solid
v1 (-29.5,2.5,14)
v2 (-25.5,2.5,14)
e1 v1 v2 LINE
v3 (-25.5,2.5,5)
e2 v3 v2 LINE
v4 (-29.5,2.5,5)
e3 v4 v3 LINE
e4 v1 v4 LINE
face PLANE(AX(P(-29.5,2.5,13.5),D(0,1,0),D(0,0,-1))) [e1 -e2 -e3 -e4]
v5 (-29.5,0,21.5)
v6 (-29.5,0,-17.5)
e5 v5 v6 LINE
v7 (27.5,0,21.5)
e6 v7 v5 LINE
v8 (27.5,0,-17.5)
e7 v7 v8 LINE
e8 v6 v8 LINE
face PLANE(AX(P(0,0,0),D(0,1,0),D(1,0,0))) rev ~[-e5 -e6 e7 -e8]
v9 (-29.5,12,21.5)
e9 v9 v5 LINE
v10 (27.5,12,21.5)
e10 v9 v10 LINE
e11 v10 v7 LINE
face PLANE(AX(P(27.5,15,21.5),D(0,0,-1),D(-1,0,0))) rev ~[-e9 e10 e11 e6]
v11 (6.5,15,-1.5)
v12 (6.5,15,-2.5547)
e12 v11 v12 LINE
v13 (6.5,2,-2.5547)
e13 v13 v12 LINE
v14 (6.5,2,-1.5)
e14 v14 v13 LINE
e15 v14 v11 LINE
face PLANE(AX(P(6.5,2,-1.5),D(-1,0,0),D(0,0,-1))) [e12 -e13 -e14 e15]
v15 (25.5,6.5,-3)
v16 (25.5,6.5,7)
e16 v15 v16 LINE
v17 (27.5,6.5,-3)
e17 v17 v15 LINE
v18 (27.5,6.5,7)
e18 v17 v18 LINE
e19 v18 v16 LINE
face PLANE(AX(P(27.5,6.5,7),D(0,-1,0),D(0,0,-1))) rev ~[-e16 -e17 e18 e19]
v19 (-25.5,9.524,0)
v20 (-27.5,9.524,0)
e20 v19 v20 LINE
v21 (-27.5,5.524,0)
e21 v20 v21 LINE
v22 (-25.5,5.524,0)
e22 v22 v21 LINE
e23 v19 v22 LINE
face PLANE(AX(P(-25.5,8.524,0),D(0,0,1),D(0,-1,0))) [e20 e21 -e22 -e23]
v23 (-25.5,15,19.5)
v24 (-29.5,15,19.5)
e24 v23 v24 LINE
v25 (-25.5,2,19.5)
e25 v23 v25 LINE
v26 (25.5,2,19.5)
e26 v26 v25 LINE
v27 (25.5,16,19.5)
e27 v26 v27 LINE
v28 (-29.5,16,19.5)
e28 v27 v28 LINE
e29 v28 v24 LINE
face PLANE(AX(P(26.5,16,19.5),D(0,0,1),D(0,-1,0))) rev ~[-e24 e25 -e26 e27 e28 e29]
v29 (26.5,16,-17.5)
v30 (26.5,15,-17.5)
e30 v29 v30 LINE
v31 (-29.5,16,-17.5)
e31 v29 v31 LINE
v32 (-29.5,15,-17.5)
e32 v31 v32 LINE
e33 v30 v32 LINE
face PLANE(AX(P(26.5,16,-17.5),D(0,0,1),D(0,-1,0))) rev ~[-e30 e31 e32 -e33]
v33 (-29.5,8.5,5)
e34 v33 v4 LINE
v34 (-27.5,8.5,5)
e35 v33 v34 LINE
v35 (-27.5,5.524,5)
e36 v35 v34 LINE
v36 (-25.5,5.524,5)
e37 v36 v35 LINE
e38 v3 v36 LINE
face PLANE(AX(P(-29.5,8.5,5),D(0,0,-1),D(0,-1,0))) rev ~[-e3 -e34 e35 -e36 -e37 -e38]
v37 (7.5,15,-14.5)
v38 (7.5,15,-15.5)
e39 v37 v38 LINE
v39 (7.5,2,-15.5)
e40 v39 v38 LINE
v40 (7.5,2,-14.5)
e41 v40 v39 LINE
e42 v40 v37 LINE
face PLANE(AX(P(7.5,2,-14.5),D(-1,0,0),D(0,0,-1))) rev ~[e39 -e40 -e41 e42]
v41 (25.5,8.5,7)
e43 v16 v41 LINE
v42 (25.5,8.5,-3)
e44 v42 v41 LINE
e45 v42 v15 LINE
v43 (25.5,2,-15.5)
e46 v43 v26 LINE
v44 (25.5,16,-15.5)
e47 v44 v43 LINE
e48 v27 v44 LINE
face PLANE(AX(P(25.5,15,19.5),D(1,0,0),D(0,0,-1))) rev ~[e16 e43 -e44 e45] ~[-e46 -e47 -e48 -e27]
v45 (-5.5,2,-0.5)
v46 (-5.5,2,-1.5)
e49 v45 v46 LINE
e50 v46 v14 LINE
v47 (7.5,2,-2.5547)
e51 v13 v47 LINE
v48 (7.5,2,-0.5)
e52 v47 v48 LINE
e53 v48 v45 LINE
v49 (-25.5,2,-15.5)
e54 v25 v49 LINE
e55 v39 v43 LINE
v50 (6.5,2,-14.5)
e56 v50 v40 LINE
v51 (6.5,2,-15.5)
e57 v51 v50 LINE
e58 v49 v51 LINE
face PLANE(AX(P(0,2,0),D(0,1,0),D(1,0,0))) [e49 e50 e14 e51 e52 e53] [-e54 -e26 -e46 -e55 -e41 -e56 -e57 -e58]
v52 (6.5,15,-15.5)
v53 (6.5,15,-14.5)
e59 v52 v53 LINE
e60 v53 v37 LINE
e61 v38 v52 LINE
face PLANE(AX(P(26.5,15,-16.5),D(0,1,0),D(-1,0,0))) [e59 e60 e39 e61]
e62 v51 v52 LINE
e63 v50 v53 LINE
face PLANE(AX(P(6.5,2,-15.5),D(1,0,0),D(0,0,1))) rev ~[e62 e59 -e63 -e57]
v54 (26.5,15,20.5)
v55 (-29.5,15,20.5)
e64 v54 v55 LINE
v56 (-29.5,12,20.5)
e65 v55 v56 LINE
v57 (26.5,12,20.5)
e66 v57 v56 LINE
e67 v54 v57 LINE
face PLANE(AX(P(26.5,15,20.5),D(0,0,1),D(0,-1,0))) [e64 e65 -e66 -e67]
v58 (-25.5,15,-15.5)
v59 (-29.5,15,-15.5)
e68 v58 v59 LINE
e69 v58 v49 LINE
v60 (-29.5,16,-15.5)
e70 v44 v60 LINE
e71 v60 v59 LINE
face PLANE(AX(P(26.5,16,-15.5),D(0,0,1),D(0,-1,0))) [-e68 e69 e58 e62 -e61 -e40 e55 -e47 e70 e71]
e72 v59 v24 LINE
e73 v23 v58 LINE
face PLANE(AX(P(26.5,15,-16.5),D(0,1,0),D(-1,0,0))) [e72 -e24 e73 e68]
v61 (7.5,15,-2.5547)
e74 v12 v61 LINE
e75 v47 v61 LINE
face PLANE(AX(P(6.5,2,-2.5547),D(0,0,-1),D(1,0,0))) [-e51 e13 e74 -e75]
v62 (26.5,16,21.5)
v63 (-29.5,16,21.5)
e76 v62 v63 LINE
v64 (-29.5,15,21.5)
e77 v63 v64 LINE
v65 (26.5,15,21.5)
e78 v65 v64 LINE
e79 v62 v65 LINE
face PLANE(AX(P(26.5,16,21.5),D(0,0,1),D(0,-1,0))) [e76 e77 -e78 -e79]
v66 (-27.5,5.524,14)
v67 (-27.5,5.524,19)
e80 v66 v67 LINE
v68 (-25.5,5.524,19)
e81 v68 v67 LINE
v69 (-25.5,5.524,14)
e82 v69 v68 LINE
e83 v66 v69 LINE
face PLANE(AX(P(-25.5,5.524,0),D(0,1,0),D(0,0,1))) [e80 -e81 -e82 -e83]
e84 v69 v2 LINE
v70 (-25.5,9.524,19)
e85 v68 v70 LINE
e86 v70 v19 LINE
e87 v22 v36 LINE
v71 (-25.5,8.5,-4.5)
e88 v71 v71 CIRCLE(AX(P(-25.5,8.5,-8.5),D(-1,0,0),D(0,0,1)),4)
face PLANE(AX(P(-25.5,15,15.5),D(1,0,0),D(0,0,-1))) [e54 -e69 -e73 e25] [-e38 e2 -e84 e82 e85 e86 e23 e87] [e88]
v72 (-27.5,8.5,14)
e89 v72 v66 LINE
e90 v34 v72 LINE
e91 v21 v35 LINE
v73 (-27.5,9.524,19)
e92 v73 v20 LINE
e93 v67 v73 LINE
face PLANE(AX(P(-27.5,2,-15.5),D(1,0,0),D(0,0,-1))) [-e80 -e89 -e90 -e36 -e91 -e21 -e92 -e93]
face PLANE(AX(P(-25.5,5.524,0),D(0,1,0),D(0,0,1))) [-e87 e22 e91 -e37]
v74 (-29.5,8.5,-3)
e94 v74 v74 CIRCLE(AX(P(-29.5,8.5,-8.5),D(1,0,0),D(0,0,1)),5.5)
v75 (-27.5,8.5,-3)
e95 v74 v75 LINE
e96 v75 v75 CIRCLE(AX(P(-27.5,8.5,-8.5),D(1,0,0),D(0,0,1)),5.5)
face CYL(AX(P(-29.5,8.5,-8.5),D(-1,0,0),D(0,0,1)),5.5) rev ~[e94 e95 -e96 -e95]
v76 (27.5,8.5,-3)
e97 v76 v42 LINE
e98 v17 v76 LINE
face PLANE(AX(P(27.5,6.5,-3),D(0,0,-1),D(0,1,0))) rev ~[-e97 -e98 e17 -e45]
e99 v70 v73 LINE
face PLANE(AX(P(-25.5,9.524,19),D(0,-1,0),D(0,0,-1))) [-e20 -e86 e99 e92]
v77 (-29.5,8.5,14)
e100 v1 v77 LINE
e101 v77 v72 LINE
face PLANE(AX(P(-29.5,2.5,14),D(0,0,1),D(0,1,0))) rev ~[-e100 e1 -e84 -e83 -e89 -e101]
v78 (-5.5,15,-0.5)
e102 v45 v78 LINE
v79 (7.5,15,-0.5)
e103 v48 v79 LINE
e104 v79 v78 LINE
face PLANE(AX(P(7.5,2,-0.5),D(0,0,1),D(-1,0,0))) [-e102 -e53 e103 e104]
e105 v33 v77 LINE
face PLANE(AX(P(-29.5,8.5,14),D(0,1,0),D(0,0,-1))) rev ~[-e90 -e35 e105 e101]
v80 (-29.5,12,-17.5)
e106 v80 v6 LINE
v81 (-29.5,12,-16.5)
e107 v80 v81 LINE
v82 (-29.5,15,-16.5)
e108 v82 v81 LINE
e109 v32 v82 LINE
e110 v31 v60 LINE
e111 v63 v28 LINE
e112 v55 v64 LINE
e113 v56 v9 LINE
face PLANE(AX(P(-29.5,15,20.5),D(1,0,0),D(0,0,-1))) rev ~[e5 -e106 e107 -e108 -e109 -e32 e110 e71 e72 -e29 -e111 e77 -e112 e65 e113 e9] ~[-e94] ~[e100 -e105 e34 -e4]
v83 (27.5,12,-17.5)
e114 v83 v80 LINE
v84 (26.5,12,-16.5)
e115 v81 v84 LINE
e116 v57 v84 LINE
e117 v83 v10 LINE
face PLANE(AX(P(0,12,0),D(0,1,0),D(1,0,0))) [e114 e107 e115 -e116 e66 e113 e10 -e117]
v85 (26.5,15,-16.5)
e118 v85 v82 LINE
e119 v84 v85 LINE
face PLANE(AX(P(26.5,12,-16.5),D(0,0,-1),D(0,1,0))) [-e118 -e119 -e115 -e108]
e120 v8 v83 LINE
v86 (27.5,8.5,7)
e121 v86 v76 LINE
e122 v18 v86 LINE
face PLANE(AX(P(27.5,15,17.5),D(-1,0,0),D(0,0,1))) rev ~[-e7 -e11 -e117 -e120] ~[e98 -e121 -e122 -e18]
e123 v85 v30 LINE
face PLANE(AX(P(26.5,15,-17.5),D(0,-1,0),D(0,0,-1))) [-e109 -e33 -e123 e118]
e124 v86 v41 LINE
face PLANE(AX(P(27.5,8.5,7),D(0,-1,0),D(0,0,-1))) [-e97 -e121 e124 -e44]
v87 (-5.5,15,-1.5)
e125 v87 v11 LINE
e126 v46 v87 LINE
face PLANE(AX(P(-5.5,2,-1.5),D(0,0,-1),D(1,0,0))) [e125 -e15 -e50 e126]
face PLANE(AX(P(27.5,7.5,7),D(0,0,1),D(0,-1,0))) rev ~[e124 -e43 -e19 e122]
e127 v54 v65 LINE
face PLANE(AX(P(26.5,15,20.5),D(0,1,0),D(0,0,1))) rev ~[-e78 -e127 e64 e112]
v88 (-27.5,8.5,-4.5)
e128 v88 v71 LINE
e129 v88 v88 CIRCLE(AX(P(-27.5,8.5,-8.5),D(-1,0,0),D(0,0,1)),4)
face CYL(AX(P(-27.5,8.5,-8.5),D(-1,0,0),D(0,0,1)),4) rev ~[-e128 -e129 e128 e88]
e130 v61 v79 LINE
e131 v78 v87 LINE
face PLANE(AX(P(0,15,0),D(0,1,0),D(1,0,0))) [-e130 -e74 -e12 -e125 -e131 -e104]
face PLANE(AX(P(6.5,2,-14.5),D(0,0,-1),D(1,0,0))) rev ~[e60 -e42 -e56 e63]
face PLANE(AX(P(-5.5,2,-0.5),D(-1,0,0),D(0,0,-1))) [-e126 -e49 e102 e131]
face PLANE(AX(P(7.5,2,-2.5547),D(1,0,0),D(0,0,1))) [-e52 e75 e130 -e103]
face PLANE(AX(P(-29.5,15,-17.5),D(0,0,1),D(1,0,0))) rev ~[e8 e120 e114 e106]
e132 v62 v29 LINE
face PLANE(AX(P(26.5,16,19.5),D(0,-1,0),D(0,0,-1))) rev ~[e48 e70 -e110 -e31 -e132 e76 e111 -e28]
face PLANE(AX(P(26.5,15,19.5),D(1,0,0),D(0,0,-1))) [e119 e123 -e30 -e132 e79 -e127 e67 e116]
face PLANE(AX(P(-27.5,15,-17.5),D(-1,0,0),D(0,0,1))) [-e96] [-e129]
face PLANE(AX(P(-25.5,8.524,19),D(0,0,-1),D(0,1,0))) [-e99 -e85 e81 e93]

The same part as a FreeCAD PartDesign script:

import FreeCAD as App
import Part
import Sketcher
from FreeCAD import Vector


def add_polygon(sketch, points):
    """Adds a closed chain of lines whose ends are joined by coincident constraints."""
    first, n = sketch.GeometryCount, len(points)
    for a, b in zip(points, points[1:] + points[:1]):
        sketch.addGeometry(Part.LineSegment(App.Vector(*a, 0), App.Vector(*b, 0)), False)
    for i in range(n):
        sketch.addConstraint(Sketcher.Constraint("Coincident", first + i, 2, first + (i + 1) % n, 1))

doc = App.newDocument("Part")
params = doc.addObject("Spreadsheet::Sheet", "Params")
for row, (alias, value) in enumerate([
    ("sketch1_width", "55 mm"),
    ("sketch1_height", "35 mm"),
    ("pad1_length", "15 mm"),
    ("sketch2_width", "51 mm"),
    ("sketch2_height", "31 mm"),
    ("pocket1_length", "13 mm"),
    ("sketch3_width", "2 mm"),
    ("sketch3_height", "35 mm"),
    ("pad2_length", "15 mm"),
    ("sketch4_diameter", "11 mm"),
    ("pocket2_length", "2 mm"),
    ("sketch5_diameter", "8 mm"),
    ("pocket3_length", "2 mm"),
    ("sketch6_width", "12 mm"),
    ("sketch6_width2", "13 mm"),
    ("pad3_length", "13 mm"),
    ("sketch7_width", "1 mm"),
    ("pad4_length", "13 mm"),
    ("sketch8_height", "4 mm"),
    ("sketch8_width", "57 mm"),
    ("pad5_length", "15 mm"),
    ("sketch9_height", "4 mm"),
    ("sketch9_width", "51 mm"),
    ("pocket4_length", "13 mm"),
    ("sketch10_width", "3 mm"),
    ("sketch10_height", "8 mm"),
    ("pocket5_length", "4 mm"),
    ("sketch11_width", "3 mm"),
    ("sketch11_height", "19 mm"),
    ("pocket6_length", "2 mm"),
    ("sketch12_width", "2 mm"),
    ("sketch12_height", "10 mm"),
    ("pocket7_length", "3 mm"),
    ("sketch13_height", "1 mm"),
    ("sketch13_height2", "37 mm"),
    ("sketch13_width", "57 mm"),
    ("pocket8_length", "3 mm"),
    ("sketch14_width", "56 mm"),
    ("sketch14_height", "1.5 mm"),
    ("pad6_length", "1 mm"),
    ("sketch15_width", "56 mm"),
    ("sketch15_height", "1.5 mm"),
    ("pad7_length", "1 mm"),
    ("sketch16_width", "3 mm"),
    ("sketch16_height", "8 mm"),
    ("pocket9_length", "6 mm"),
    ("sketch17_width", "6 mm"),
    ("sketch17_height", "9 mm"),
    ("pocket10_length", "6 mm"),
    ("sketch18_width", "1 mm"),
    ("sketch18_height", "19 mm"),
    ("pocket11_length", "2 mm"),
    ("sketch19_width", "3 mm"),
    ("sketch19_height", "1 mm"),
    ("pocket12_length", "100 mm"),
    ("sketch20_width", "1 mm"),
    ("sketch20_height", "2.5 mm"),
    ("pad8_length", "56 mm"),
    ("sketch21_width", "1 mm"),
    ("sketch21_height", "2.5 mm"),
    ("pad9_length", "56 mm"),
    ("sketch22_height", "0.5 mm"),
    ("sketch22_width", "1 mm"),
    ("pocket13_length", "56 mm"),
    ("sketch23_width", "1 mm"),
    ("sketch23_height", "35 mm"),
    ("pad10_length", "1 mm"),
], start=1):
    params.set(f"A{row}", alias)
    params.set(f"B{row}", "=" + value)
    params.setAlias(f"B{row}", alias)

body = doc.addObject("PartDesign::Body", "Body")

# Sketch on XZ plane
sketch1 = body.newObject("Sketcher::SketchObject", "Sketch")
sketch1.AttachmentSupport = (doc.getObject("XZ_Plane"), [""])
sketch1.MapMode = "FlatFace"
add_polygon(sketch1, [(28, -18), (-28, -18), (-28, 18), (28, 18)])  # lines 0-3
sketch1.addConstraint([
    Sketcher.Constraint("Horizontal", 0),
    Sketcher.Constraint("Vertical", 1),
    Sketcher.Constraint("Horizontal", 2),
    Sketcher.Constraint("Vertical", 3),
    Sketcher.Constraint("Symmetric", 0, 2, 2, 2, -1, 1),
    Sketcher.Constraint("DistanceX", 0, 2, 0, 1, 55.0),
    Sketcher.Constraint("DistanceY", 1, 1, 1, 2, 35.0),
])
sketch1.setExpression("Constraints[9]", "Params.sketch1_width")
sketch1.setExpression("Constraints[10]", "Params.sketch1_height")
pad1 = body.newObject("PartDesign::Pad", "Pad")
pad1.Profile = sketch1
pad1.setExpression("Length", "Params.pad1_length")
pad1.Reversed = True

# Sketch on XZ plane
sketch2 = body.newObject("Sketcher::SketchObject", "Sketch001")
sketch2.AttachmentSupport = (doc.getObject("XZ_Plane"), [""])
sketch2.MapMode = "FlatFace"
sketch2.AttachmentOffset = App.Placement(Vector(0, 0, -15), App.Rotation())
add_polygon(sketch2, [(-26, 16), (26, 16), (26, -16), (-26, -16)])  # lines 0-3
sketch2.addConstraint([
    Sketcher.Constraint("Horizontal", 0),
    Sketcher.Constraint("Vertical", 1),
    Sketcher.Constraint("Horizontal", 2),
    Sketcher.Constraint("Vertical", 3),
    Sketcher.Constraint("Symmetric", 0, 2, 2, 2, -1, 1),
    Sketcher.Constraint("DistanceX", 0, 1, 0, 2, 51.0),
    Sketcher.Constraint("DistanceY", 1, 2, 1, 1, 31.0),
])
sketch2.setExpression("Constraints[9]", "Params.sketch2_width")
sketch2.setExpression("Constraints[10]", "Params.sketch2_height")
pocket1 = body.newObject("PartDesign::Pocket", "Pocket")
pocket1.Profile = sketch2
pocket1.setExpression("Length", "Params.pocket1_length")
pocket1.Reversed = True

# Sketch on XZ plane
sketch3 = body.newObject("Sketcher::SketchObject", "Sketch002")
sketch3.AttachmentSupport = (doc.getObject("XZ_Plane"), [""])
sketch3.MapMode = "FlatFace"
sketch3.AttachmentOffset = App.Placement(Vector(0, 0, -15), App.Rotation())
add_polygon(sketch3, [(-27.5, 17.5), (-27.5, -17.5), (-29.5, -17.5), (-29.5, 17.5)])  # lines 0-3
sketch3.addConstraint([
    Sketcher.Constraint("Vertical", 0),
    Sketcher.Constraint("Horizontal", 1),
    Sketcher.Constraint("Vertical", 2),
    Sketcher.Constraint("Horizontal", 3),
    Sketcher.Constraint("DistanceX", 1, 2, 1, 1, 2.0),
    Sketcher.Constraint("DistanceY", 0, 2, 0, 1, 35.0),
    Sketcher.Constraint("DistanceX", 0, 2, -1, 1, 27.5),
    Sketcher.Constraint("DistanceY", 0, 2, -1, 1, 17.5),
])
sketch3.setExpression("Constraints[8]", "Params.sketch3_width")
sketch3.setExpression("Constraints[9]", "Params.sketch3_height")
pad2 = body.newObject("PartDesign::Pad", "Pad001")
pad2.Profile = sketch3
pad2.setExpression("Length", "Params.pad2_length")

# Sketch on YZ plane
sketch4 = body.newObject("Sketcher::SketchObject", "Sketch003")
sketch4.AttachmentSupport = (doc.getObject("YZ_Plane"), [""])
sketch4.MapMode = "FlatFace"
sketch4.AttachmentOffset = App.Placement(Vector(0, 0, -29.5), App.Rotation())
sketch4.addGeometry(Part.Circle(Vector(8, -8, 0), Vector(0, 0, 1), 6), False)
sketch4.addConstraint([
    Sketcher.Constraint("Diameter", 0, 11.0),
    Sketcher.Constraint("DistanceX", -1, 1, 0, 3, 8.5),
    Sketcher.Constraint("DistanceY", 0, 3, -1, 1, 8.5),
])
sketch4.setExpression("Constraints[0]", "Params.sketch4_diameter")
pocket2 = body.newObject("PartDesign::Pocket", "Pocket001")
pocket2.Profile = sketch4
pocket2.setExpression("Length", "Params.pocket2_length")
pocket2.Reversed = True

# Sketch on YZ plane
sketch5 = body.newObject("Sketcher::SketchObject", "Sketch004")
sketch5.AttachmentSupport = (doc.getObject("YZ_Plane"), [""])
sketch5.MapMode = "FlatFace"
sketch5.AttachmentOffset = App.Placement(Vector(0, 0, -27.5), App.Rotation())
sketch5.addGeometry(Part.Circle(Vector(8.5, -8.5, 0), Vector(0, 0, 1), 4), False)
sketch5.addConstraint([
    Sketcher.Constraint("Diameter", 0, 8.0),
    Sketcher.Constraint("DistanceX", -1, 1, 0, 3, 8.5),
    Sketcher.Constraint("DistanceY", 0, 3, -1, 1, 8.5),
])
sketch5.setExpression("Constraints[0]", "Params.sketch5_diameter")
pocket3 = body.newObject("PartDesign::Pocket", "Pocket002")
pocket3.Profile = sketch5
pocket3.setExpression("Length", "Params.pocket3_length")
pocket3.Reversed = True

# Sketch on XZ plane
sketch6 = body.newObject("Sketcher::SketchObject", "Sketch005")
sketch6.AttachmentSupport = (doc.getObject("XZ_Plane"), [""])
sketch6.MapMode = "FlatFace"
sketch6.AttachmentOffset = App.Placement(Vector(0, 0, -2), App.Rotation())
add_polygon(sketch6, [(6.5, -2.6), (6.5, -1.5), (-5.5, -1.5), (-5.5, -0.5), (7.5, -0.5), (7.5, -2.6)])  # lines 0-5
sketch6.addConstraint([
    Sketcher.Constraint("Vertical", 0),
    Sketcher.Constraint("Horizontal", 1),
    Sketcher.Constraint("Vertical", 2),
    Sketcher.Constraint("Horizontal", 3),
    Sketcher.Constraint("Vertical", 4),
    Sketcher.Constraint("Horizontal", 5),
    Sketcher.Constraint("Equal", 5, 2),
    Sketcher.Constraint("DistanceX", 1, 2, 1, 1, 12.0),
    Sketcher.Constraint("DistanceX", 3, 1, 3, 2, 13.0),
    Sketcher.Constraint("DistanceX", -1, 1, 0, 2, 6.5),
    Sketcher.Constraint("DistanceY", 0, 2, -1, 1, 1.5),
    Sketcher.Constraint("DistanceY", 0, 1, 0, 2, 1.0547),
])
sketch6.setExpression("Constraints[13]", "Params.sketch6_width")
sketch6.setExpression("Constraints[14]", "Params.sketch6_width2")
pad3 = body.newObject("PartDesign::Pad", "Pad002")
pad3.Profile = sketch6
pad3.setExpression("Length", "Params.pad3_length")
pad3.Reversed = True

# Sketch on XZ plane
sketch7 = body.newObject("Sketcher::SketchObject", "Sketch006")
sketch7.AttachmentSupport = (doc.getObject("XZ_Plane"), [""])
sketch7.MapMode = "FlatFace"
sketch7.AttachmentOffset = App.Placement(Vector(0, 0, -2), App.Rotation())
add_polygon(sketch7, [(7.5, -15.5), (6.5, -15.5), (6.5, -14.5), (7.5, -14.5)])  # lines 0-3
sketch7.addConstraint([
    Sketcher.Constraint("Horizontal", 0),
    Sketcher.Constraint("Vertical", 1),
    Sketcher.Constraint("Horizontal", 2),
    Sketcher.Constraint("Vertical", 3),
    Sketcher.Constraint("Equal", 2, 1),
    Sketcher.Constraint("DistanceX", 0, 2, 0, 1, 1.0),
    Sketcher.Constraint("DistanceX", -1, 1, 0, 2, 6.5),
    Sketcher.Constraint("DistanceY", 0, 2, -1, 1, 15.5),
])
sketch7.setExpression("Constraints[9]", "Params.sketch7_width")
pad4 = body.newObject("PartDesign::Pad", "Pad003")
pad4.Profile = sketch7
pad4.setExpression("Length", "Params.pad4_length")
pad4.Reversed = True

# Sketch on XZ plane
sketch8 = body.newObject("Sketcher::SketchObject", "Sketch007")
sketch8.AttachmentSupport = (doc.getObject("XZ_Plane"), [""])
sketch8.MapMode = "FlatFace"
sketch8.AttachmentOffset = App.Placement(Vector(0, 0, -15), App.Rotation())
add_polygon(sketch8, [(27.5, 17.5), (-29.5, 17.5), (-29.5, 21.5), (27.5, 21.5)])  # lines 0-3
sketch8.addConstraint([
    Sketcher.Constraint("Horizontal", 0),
    Sketcher.Constraint("Vertical", 1),
    Sketcher.Constraint("Horizontal", 2),
    Sketcher.Constraint("Vertical", 3),
    Sketcher.Constraint("DistanceY", 1, 1, 1, 2, 4.0),
    Sketcher.Constraint("DistanceX", 0, 2, 0, 1, 57.0),
    Sketcher.Constraint("DistanceX", 0, 2, -1, 1, 29.5),
    Sketcher.Constraint("DistanceY", -1, 1, 0, 2, 17.5),
])
sketch8.setExpression("Constraints[8]", "Params.sketch8_height")
sketch8.setExpression("Constraints[9]", "Params.sketch8_width")
pad5 = body.newObject("PartDesign::Pad", "Pad004")
pad5.Profile = sketch8
pad5.setExpression("Length", "Params.pad5_length")

# Sketch on XZ plane
sketch9 = body.newObject("Sketcher::SketchObject", "Sketch008")
sketch9.AttachmentSupport = (doc.getObject("XZ_Plane"), [""])
sketch9.MapMode = "FlatFace"
sketch9.AttachmentOffset = App.Placement(Vector(0, 0, -15), App.Rotation())
add_polygon(sketch9, [(25.5, 19.5), (25.5, 15.5), (-25.5, 15.5), (-25.5, 19.5)])  # lines 0-3
sketch9.addConstraint([
    Sketcher.Constraint("Vertical", 0),
    Sketcher.Constraint("Horizontal", 1),
    Sketcher.Constraint("Vertical", 2),
    Sketcher.Constraint("Horizontal", 3),
    Sketcher.Constraint("DistanceY", 0, 2, 0, 1, 4.0),
    Sketcher.Constraint("DistanceX", 1, 2, 1, 1, 51.0),
    Sketcher.Constraint("DistanceX", -1, 1, 0, 2, 25.5),
    Sketcher.Constraint("DistanceY", -1, 1, 0, 2, 15.5),
])
sketch9.setExpression("Constraints[8]", "Params.sketch9_height")
sketch9.setExpression("Constraints[9]", "Params.sketch9_width")
pocket4 = body.newObject("PartDesign::Pocket", "Pocket003")
pocket4.Profile = sketch9
pocket4.setExpression("Length", "Params.pocket4_length")
pocket4.Reversed = True

# Sketch on YZ plane
sketch10 = body.newObject("Sketcher::SketchObject", "Sketch009")
sketch10.AttachmentSupport = (doc.getObject("YZ_Plane"), [""])
sketch10.MapMode = "FlatFace"
sketch10.AttachmentOffset = App.Placement(Vector(0, 0, -29.5), App.Rotation())
add_polygon(sketch10, [(5.5, 13.5), (5.5, 5.5), (2.5, 5.5), (2.5, 13.5)])  # lines 0-3
sketch10.addConstraint([
    Sketcher.Constraint("Vertical", 0),
    Sketcher.Constraint("Horizontal", 1),
    Sketcher.Constraint("Vertical", 2),
    Sketcher.Constraint("Horizontal", 3),
    Sketcher.Constraint("DistanceX", 1, 2, 1, 1, 3.0),
    Sketcher.Constraint("DistanceY", 0, 2, 0, 1, 8.0),
    Sketcher.Constraint("DistanceX", -1, 1, 0, 2, 5.5),
    Sketcher.Constraint("DistanceY", -1, 1, 0, 2, 5.5),
])
sketch10.setExpression("Constraints[8]", "Params.sketch10_width")
sketch10.setExpression("Constraints[9]", "Params.sketch10_height")
pocket5 = body.newObject("PartDesign::Pocket", "Pocket004")
pocket5.Profile = sketch10
pocket5.setExpression("Length", "Params.pocket5_length")
pocket5.Reversed = True

# Sketch on YZ plane
sketch11 = body.newObject("Sketcher::SketchObject", "Sketch010")
sketch11.AttachmentSupport = (doc.getObject("YZ_Plane"), [""])
sketch11.MapMode = "FlatFace"
sketch11.AttachmentOffset = App.Placement(Vector(0, 0, -25.5), App.Rotation())
add_polygon(sketch11, [(5.5, 19), (5.5, 0), (8.5, 0), (8.5, 19)])  # lines 0-3
sketch11.addConstraint([
    Sketcher.Constraint("Vertical", 0),
    Sketcher.Constraint("Horizontal", 1),
    Sketcher.Constraint("Vertical", 2),
    Sketcher.Constraint("Horizontal", 3),
    Sketcher.Constraint("PointOnObject", 0, 2, -1),
    Sketcher.Constraint("DistanceX", 1, 1, 1, 2, 3.0),
    Sketcher.Constraint("DistanceY", 0, 2, 0, 1, 19.0),
    Sketcher.Constraint("DistanceX", -1, 1, 0, 2, 5.524),
])
sketch11.setExpression("Constraints[9]", "Params.sketch11_width")
sketch11.setExpression("Constraints[10]", "Params.sketch11_height")
pocket6 = body.newObject("PartDesign::Pocket", "Pocket005")
pocket6.Profile = sketch11
pocket6.setExpression("Length", "Params.pocket6_length")

# Sketch on YZ plane
sketch12 = body.newObject("Sketcher::SketchObject", "Sketch011")
sketch12.AttachmentSupport = (doc.getObject("YZ_Plane"), [""])
sketch12.MapMode = "FlatFace"
sketch12.AttachmentOffset = App.Placement(Vector(0, 0, 27.5), App.Rotation())
add_polygon(sketch12, [(6.5, 7), (6.5, -3), (8.5, -3), (8.5, 7)])  # lines 0-3
sketch12.addConstraint([
    Sketcher.Constraint("Vertical", 0),
    Sketcher.Constraint("Horizontal", 1),
    Sketcher.Constraint("Vertical", 2),
    Sketcher.Constraint("Horizontal", 3),
    Sketcher.Constraint("DistanceX", 1, 1, 1, 2, 2.0),
    Sketcher.Constraint("DistanceY", 0, 2, 0, 1, 10.0),
    Sketcher.Constraint("DistanceY", 0, 2, -1, 1, 3.0),
    Sketcher.Constraint("DistanceX", -1, 1, 0, 2, 6.5),
])
sketch12.setExpression("Constraints[8]", "Params.sketch12_width")
sketch12.setExpression("Constraints[9]", "Params.sketch12_height")
pocket7 = body.newObject("PartDesign::Pocket", "Pocket006")
pocket7.Profile = sketch12
pocket7.setExpression("Length", "Params.pocket7_length")

# Sketch on XZ plane
sketch13 = body.newObject("Sketcher::SketchObject", "Sketch012")
sketch13.AttachmentSupport = (doc.getObject("XZ_Plane"), [""])
sketch13.MapMode = "FlatFace"
sketch13.AttachmentOffset = App.Placement(Vector(0, 0, -15), App.Rotation())
add_polygon(sketch13, [(-29.5, 21.5), (27.5, 21.5), (27.5, -17.5), (-29.5, -17.5), (-29.5, -16.5), (26.5, -16.5), (26.5, 20.5), (-29.5, 20.5)])  # lines 0-7
sketch13.addConstraint([
    Sketcher.Constraint("Horizontal", 0),
    Sketcher.Constraint("Vertical", 1),
    Sketcher.Constraint("Horizontal", 2),
    Sketcher.Constraint("Vertical", 3),
    Sketcher.Constraint("Horizontal", 4),
    Sketcher.Constraint("Vertical", 5),
    Sketcher.Constraint("Horizontal", 6),
    Sketcher.Constraint("Vertical", 7),
    Sketcher.Constraint("Vertical", 3, 2, 6, 2),
    Sketcher.Constraint("Equal", 3, 7),
    Sketcher.Constraint("DistanceY", 3, 1, 3, 2, 1.0),
    Sketcher.Constraint("DistanceY", 5, 1, 5, 2, 37.0),
    Sketcher.Constraint("DistanceX", 4, 2, 1, 2, 1.0),
    Sketcher.Constraint("DistanceX", 0, 1, 0, 2, 57.0),
    Sketcher.Constraint("DistanceX", -1, 1, 0, 2, 27.5),
    Sketcher.Constraint("DistanceY", -1, 1, 0, 2, 21.5),
])
sketch13.setExpression("Constraints[18]", "Params.sketch13_height")
sketch13.setExpression("Constraints[19]", "Params.sketch13_height2")
sketch13.setExpression("Constraints[21]", "Params.sketch13_width")
pocket8 = body.newObject("PartDesign::Pocket", "Pocket007")
pocket8.Profile = sketch13
pocket8.setExpression("Length", "Params.pocket8_length")
pocket8.Reversed = True

# Sketch on XY plane
sketch14 = body.newObject("Sketcher::SketchObject", "Sketch013")
sketch14.AttachmentSupport = (doc.getObject("XY_Plane"), [""])
sketch14.MapMode = "FlatFace"
sketch14.AttachmentOffset = App.Placement(Vector(0, 0, 20.5), App.Rotation())
add_polygon(sketch14, [(26.5, 15), (-29.5, 15), (-29.5, 13.5), (26.5, 13.5)])  # lines 0-3
sketch14.addConstraint([
    Sketcher.Constraint("Horizontal", 0),
    Sketcher.Constraint("Vertical", 1),
    Sketcher.Constraint("Horizontal", 2),
    Sketcher.Constraint("Vertical", 3),
    Sketcher.Constraint("DistanceX", 0, 2, 0, 1, 56.0),
    Sketcher.Constraint("DistanceY", 1, 2, 1, 1, 1.5),
    Sketcher.Constraint("DistanceY", -1, 1, 0, 2, 15.0),
    Sketcher.Constraint("DistanceX", 0, 2, -1, 1, 29.5),
])
sketch14.setExpression("Constraints[8]", "Params.sketch14_width")
sketch14.setExpression("Constraints[9]", "Params.sketch14_height")
pad6 = body.newObject("PartDesign::Pad", "Pad005")
pad6.Profile = sketch14
pad6.setExpression("Length", "Params.pad6_length")

# Sketch on XY plane
sketch15 = body.newObject("Sketcher::SketchObject", "Sketch014")
sketch15.AttachmentSupport = (doc.getObject("XY_Plane"), [""])
sketch15.MapMode = "FlatFace"
sketch15.AttachmentOffset = App.Placement(Vector(0, 0, -16.5), App.Rotation())
add_polygon(sketch15, [(-29.5, 15), (26.5, 15), (26.5, 13.5), (-29.5, 13.5)])  # lines 0-3
sketch15.addConstraint([
    Sketcher.Constraint("Horizontal", 0),
    Sketcher.Constraint("Vertical", 1),
    Sketcher.Constraint("Horizontal", 2),
    Sketcher.Constraint("Vertical", 3),
    Sketcher.Constraint("DistanceX", 0, 1, 0, 2, 56.0),
    Sketcher.Constraint("DistanceY", 1, 2, 1, 1, 1.5),
    Sketcher.Constraint("DistanceY", -1, 1, 0, 2, 15.0),
    Sketcher.Constraint("DistanceX", -1, 1, 0, 2, 26.5),
])
sketch15.setExpression("Constraints[8]", "Params.sketch15_width")
sketch15.setExpression("Constraints[9]", "Params.sketch15_height")
pad7 = body.newObject("PartDesign::Pad", "Pad006")
pad7.Profile = sketch15
pad7.setExpression("Length", "Params.pad7_length")
pad7.Reversed = True

# Sketch on YZ plane
sketch16 = body.newObject("Sketcher::SketchObject", "Sketch015")
sketch16.AttachmentSupport = (doc.getObject("YZ_Plane"), [""])
sketch16.MapMode = "FlatFace"
sketch16.AttachmentOffset = App.Placement(Vector(0, 0, -29.5), App.Rotation())
add_polygon(sketch16, [(8.5, 5.5), (5.5, 5.5), (5.5, 13.5), (8.5, 13.5)])  # lines 0-3
sketch16.addConstraint([
    Sketcher.Constraint("Horizontal", 0),
    Sketcher.Constraint("Vertical", 1),
    Sketcher.Constraint("Horizontal", 2),
    Sketcher.Constraint("Vertical", 3),
    Sketcher.Constraint("DistanceX", 0, 2, 0, 1, 3.0),
    Sketcher.Constraint("DistanceY", 1, 1, 1, 2, 8.0),
    Sketcher.Constraint("DistanceX", -1, 1, 0, 2, 5.5),
    Sketcher.Constraint("DistanceY", -1, 1, 0, 2, 5.5),
])
sketch16.setExpression("Constraints[8]", "Params.sketch16_width")
sketch16.setExpression("Constraints[9]", "Params.sketch16_height")
pocket9 = body.newObject("PartDesign::Pocket", "Pocket008")
pocket9.Profile = sketch16
pocket9.setExpression("Length", "Params.pocket9_length")
pocket9.Reversed = True

# Sketch on YZ plane
sketch17 = body.newObject("Sketcher::SketchObject", "Sketch016")
sketch17.AttachmentSupport = (doc.getObject("YZ_Plane"), [""])
sketch17.MapMode = "FlatFace"
sketch17.AttachmentOffset = App.Placement(Vector(0, 0, -29.5), App.Rotation())
add_polygon(sketch17, [(8, 14), (8, 5), (2, 5), (2, 14)])  # lines 0-3
sketch17.addConstraint([
    Sketcher.Constraint("Vertical", 0),
    Sketcher.Constraint("Horizontal", 1),
    Sketcher.Constraint("Vertical", 2),
    Sketcher.Constraint("Horizontal", 3),
    Sketcher.Constraint("DistanceX", 1, 2, 1, 1, 6.0),
    Sketcher.Constraint("DistanceY", 0, 2, 0, 1, 9.0),
    Sketcher.Constraint("DistanceY", -1, 1, 0, 2, 5.0),
    Sketcher.Constraint("DistanceX", -1, 1, 0, 2, 8.5),
])
sketch17.setExpression("Constraints[8]", "Params.sketch17_width")
sketch17.setExpression("Constraints[9]", "Params.sketch17_height")
pocket10 = body.newObject("PartDesign::Pocket", "Pocket009")
pocket10.Profile = sketch17
pocket10.setExpression("Length", "Params.pocket10_length")
pocket10.Reversed = True

# Sketch on YZ plane
sketch18 = body.newObject("Sketcher::SketchObject", "Sketch017")
sketch18.AttachmentSupport = (doc.getObject("YZ_Plane"), [""])
sketch18.MapMode = "FlatFace"
sketch18.AttachmentOffset = App.Placement(Vector(0, 0, -25.5), App.Rotation())
add_polygon(sketch18, [(9.5, 19), (8.5, 19), (8.5, 0), (9.5, 0)])  # lines 0-3
sketch18.addConstraint([
    Sketcher.Constraint("Horizontal", 0),
    Sketcher.Constraint("Vertical", 1),
    Sketcher.Constraint("Horizontal", 2),
    Sketcher.Constraint("Vertical", 3),
    Sketcher.Constraint("PointOnObject", 1, 2, -1),
    Sketcher.Constraint("DistanceX", 0, 2, 0, 1, 1.0),
    Sketcher.Constraint("DistanceY", 1, 2, 1, 1, 19.0),
    Sketcher.Constraint("DistanceX", -1, 1, 0, 2, 8.524),
])
sketch18.setExpression("Constraints[9]", "Params.sketch18_width")
sketch18.setExpression("Constraints[10]", "Params.sketch18_height")
pocket11 = body.newObject("PartDesign::Pocket", "Pocket010")
pocket11.Profile = sketch18
pocket11.setExpression("Length", "Params.pocket11_length")

# Sketch on YZ plane
sketch19 = body.newObject("Sketcher::SketchObject", "Sketch018")
sketch19.AttachmentSupport = (doc.getObject("YZ_Plane"), [""])
sketch19.MapMode = "FlatFace"
sketch19.AttachmentOffset = App.Placement(Vector(0, 0, 26.5), App.Rotation())
add_polygon(sketch19, [(12, 21.5), (12, 20.5), (15, 20.5), (15, 21.5)])  # lines 0-3
add_polygon(sketch19, [(15, -16.5), (12, -16.5), (12, -17.5), (15, -17.5)])  # lines 4-7
sketch19.addConstraint([
    Sketcher.Constraint("Vertical", 0),
    Sketcher.Constraint("Horizontal", 1),
    Sketcher.Constraint("Vertical", 2),
    Sketcher.Constraint("Horizontal", 3),
    Sketcher.Constraint("Horizontal", 4),
    Sketcher.Constraint("Vertical", 5),
    Sketcher.Constraint("Horizontal", 6),
    Sketcher.Constraint("Vertical", 7),
    Sketcher.Constraint("Vertical", 3, 2, 4, 2),
    Sketcher.Constraint("Vertical", 2, 2, 6, 2),
    Sketcher.Constraint("Equal", 2, 5),
    Sketcher.Constraint("DistanceX", 1, 1, 1, 2, 3.0),
    Sketcher.Constraint("DistanceY", 0, 2, 0, 1, 1.0),
    Sketcher.Constraint("DistanceX", -1, 1, 0, 2, 12.0),
    Sketcher.Constraint("DistanceY", 4, 2, 0, 2, 37.0),
    Sketcher.Constraint("DistanceY", -1, 1, 0, 2, 20.5),
])
sketch19.setExpression("Constraints[19]", "Params.sketch19_width")
sketch19.setExpression("Constraints[20]", "Params.sketch19_height")
pocket12 = body.newObject("PartDesign::Pocket", "Pocket011")
pocket12.Profile = sketch19
pocket12.setExpression("Length", "Params.pocket12_length")

# Sketch on YZ plane
sketch20 = body.newObject("Sketcher::SketchObject", "Sketch019")
sketch20.AttachmentSupport = (doc.getObject("YZ_Plane"), [""])
sketch20.MapMode = "FlatFace"
sketch20.AttachmentOffset = App.Placement(Vector(0, 0, 26.5), App.Rotation())
add_polygon(sketch20, [(15, -15.5), (15, -18), (16, -18), (16, -15.5)])  # lines 0-3
sketch20.addConstraint([
    Sketcher.Constraint("Vertical", 0),
    Sketcher.Constraint("Horizontal", 1),
    Sketcher.Constraint("Vertical", 2),
    Sketcher.Constraint("Horizontal", 3),
    Sketcher.Constraint("DistanceX", 1, 1, 1, 2, 1.0),
    Sketcher.Constraint("DistanceY", 0, 2, 0, 1, 2.5),
    Sketcher.Constraint("DistanceX", -1, 1, 0, 2, 15.0),
    Sketcher.Constraint("DistanceY", 0, 2, -1, 1, 18.0),
])
sketch20.setExpression("Constraints[8]", "Params.sketch20_width")
sketch20.setExpression("Constraints[9]", "Params.sketch20_height")
pad8 = body.newObject("PartDesign::Pad", "Pad007")
pad8.Profile = sketch20
pad8.setExpression("Length", "Params.pad8_length")
pad8.Reversed = True

# Sketch on YZ plane
sketch21 = body.newObject("Sketcher::SketchObject", "Sketch020")
sketch21.AttachmentSupport = (doc.getObject("YZ_Plane"), [""])
sketch21.MapMode = "FlatFace"
sketch21.AttachmentOffset = App.Placement(Vector(0, 0, 26.5), App.Rotation())
add_polygon(sketch21, [(15, 22), (15, 19.5), (16, 19.5), (16, 22)])  # lines 0-3
sketch21.addConstraint([
    Sketcher.Constraint("Vertical", 0),
    Sketcher.Constraint("Horizontal", 1),
    Sketcher.Constraint("Vertical", 2),
    Sketcher.Constraint("Horizontal", 3),
    Sketcher.Constraint("DistanceX", 1, 1, 1, 2, 1.0),
    Sketcher.Constraint("DistanceY", 0, 2, 0, 1, 2.5),
    Sketcher.Constraint("DistanceX", -1, 1, 0, 2, 15.0),
    Sketcher.Constraint("DistanceY", -1, 1, 2, 2, 22.0),
])
sketch21.setExpression("Constraints[8]", "Params.sketch21_width")
sketch21.setExpression("Constraints[9]", "Params.sketch21_height")
pad9 = body.newObject("PartDesign::Pad", "Pad008")
pad9.Profile = sketch21
pad9.setExpression("Length", "Params.pad9_length")
pad9.Reversed = True

# Sketch on YZ plane
sketch22 = body.newObject("Sketcher::SketchObject", "Sketch021")
sketch22.AttachmentSupport = (doc.getObject("YZ_Plane"), [""])
sketch22.MapMode = "FlatFace"
sketch22.AttachmentOffset = App.Placement(Vector(0, 0, 26.5), App.Rotation())
add_polygon(sketch22, [(16, 21.5), (16, 22), (15, 22), (15, 21.5)])  # lines 0-3
add_polygon(sketch22, [(15, -18), (16, -18), (16, -17.5), (15, -17.5)])  # lines 4-7
sketch22.addConstraint([
    Sketcher.Constraint("Vertical", 0),
    Sketcher.Constraint("Horizontal", 1),
    Sketcher.Constraint("Vertical", 2),
    Sketcher.Constraint("Horizontal", 3),
    Sketcher.Constraint("Horizontal", 4),
    Sketcher.Constraint("Vertical", 5),
    Sketcher.Constraint("Horizontal", 6),
    Sketcher.Constraint("Vertical", 7),
    Sketcher.Constraint("Vertical", 3, 2, 4, 2),
    Sketcher.Constraint("Vertical", 2, 2, 6, 2),
    Sketcher.Constraint("Equal", 2, 5),
    Sketcher.Constraint("DistanceY", 0, 1, 0, 2, 0.5),
    Sketcher.Constraint("DistanceX", 1, 2, 1, 1, 1.0),
    Sketcher.Constraint("DistanceX", -1, 1, 0, 2, 16.0),
    Sketcher.Constraint("DistanceY", -1, 1, 0, 2, 22.0),
    Sketcher.Constraint("DistanceY", 4, 2, -1, 1, 18.0),
])
sketch22.setExpression("Constraints[19]", "Params.sketch22_height")
sketch22.setExpression("Constraints[20]", "Params.sketch22_width")
pocket13 = body.newObject("PartDesign::Pocket", "Pocket012")
pocket13.Profile = sketch22
pocket13.setExpression("Length", "Params.pocket13_length")

# Sketch on YZ plane
sketch23 = body.newObject("Sketcher::SketchObject", "Sketch022")
sketch23.AttachmentSupport = (doc.getObject("YZ_Plane"), [""])
sketch23.MapMode = "FlatFace"
sketch23.AttachmentOffset = App.Placement(Vector(0, 0, 26.5), App.Rotation())
add_polygon(sketch23, [(15, 19.5), (15, -15.5), (16, -15.5), (16, 19.5)])  # lines 0-3
sketch23.addConstraint([
    Sketcher.Constraint("Vertical", 0),
    Sketcher.Constraint("Horizontal", 1),
    Sketcher.Constraint("Vertical", 2),
    Sketcher.Constraint("Horizontal", 3),
    Sketcher.Constraint("DistanceX", 1, 1, 1, 2, 1.0),
    Sketcher.Constraint("DistanceY", 0, 2, 0, 1, 35.0),
    Sketcher.Constraint("DistanceX", -1, 1, 0, 2, 15.0),
    Sketcher.Constraint("DistanceY", 0, 2, -1, 1, 15.5),
])
sketch23.setExpression("Constraints[8]", "Params.sketch23_width")
sketch23.setExpression("Constraints[9]", "Params.sketch23_height")
pad10 = body.newObject("PartDesign::Pad", "Pad009")
pad10.Profile = sketch23
pad10.setExpression("Length", "Params.pad10_length")
pad10.Reversed = True

doc.recompute()
